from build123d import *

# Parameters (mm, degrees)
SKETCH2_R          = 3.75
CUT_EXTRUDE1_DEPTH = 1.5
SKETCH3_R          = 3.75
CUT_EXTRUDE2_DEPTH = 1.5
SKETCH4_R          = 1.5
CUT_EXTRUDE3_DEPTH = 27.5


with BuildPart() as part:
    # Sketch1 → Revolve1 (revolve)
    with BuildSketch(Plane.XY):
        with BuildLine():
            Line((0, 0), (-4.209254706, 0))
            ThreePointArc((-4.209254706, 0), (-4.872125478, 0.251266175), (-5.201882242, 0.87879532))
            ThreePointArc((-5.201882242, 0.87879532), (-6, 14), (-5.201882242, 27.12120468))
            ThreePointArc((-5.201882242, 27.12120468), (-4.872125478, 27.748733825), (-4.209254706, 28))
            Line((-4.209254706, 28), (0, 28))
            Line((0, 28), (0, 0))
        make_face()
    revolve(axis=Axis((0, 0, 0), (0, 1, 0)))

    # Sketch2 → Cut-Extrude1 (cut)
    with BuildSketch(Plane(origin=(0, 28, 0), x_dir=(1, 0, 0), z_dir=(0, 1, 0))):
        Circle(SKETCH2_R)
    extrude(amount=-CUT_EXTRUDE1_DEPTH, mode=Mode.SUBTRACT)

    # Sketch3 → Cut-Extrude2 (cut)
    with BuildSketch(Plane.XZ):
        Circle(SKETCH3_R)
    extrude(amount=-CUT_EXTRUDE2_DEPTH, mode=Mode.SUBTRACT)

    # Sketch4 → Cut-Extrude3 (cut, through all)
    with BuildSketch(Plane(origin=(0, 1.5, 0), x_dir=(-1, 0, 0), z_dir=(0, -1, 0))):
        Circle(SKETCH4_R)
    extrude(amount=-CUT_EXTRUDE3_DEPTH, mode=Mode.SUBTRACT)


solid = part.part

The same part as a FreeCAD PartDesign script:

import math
import FreeCAD as App
import Part
import Sketcher

V = App.Vector

doc = App.newDocument("Part")
params = doc.addObject("Spreadsheet::Sheet", "Params")
for row, (alias, value) in enumerate([
    ("sketch1_radius", "1 mm"),
    ("sketch1_height", "28 mm"),
    ("revolution_angle", "360 deg"),
    ("sketch2_diameter", "7.5 mm"),
    ("pocket1_length", "1.5 mm"),
    ("sketch3_diameter", "7.5 mm"),
    ("pocket2_length", "1.5 mm"),
    ("sketch4_diameter", "3 mm"),
], start=1):
    params.set(f"A{row}", alias)
    params.set(f"B{row}", "=" + value)
    params.setAlias(f"B{row}", alias)

body = doc.addObject("PartDesign::Body", "Body")

# Sketch on XY plane
sketch1 = body.newObject("Sketcher::SketchObject", "Sketch")
sketch1.AttachmentSupport = (doc.getObject("XY_Plane"), [""])
sketch1.MapMode = "FlatFace"
sketch1.addGeometry([
    Part.LineSegment(V(-4.2, 0, 0), V(0, 0, 0)),  # 0
    Part.LineSegment(V(0, 0, 0), V(0, 28, 0)),  # 1
    Part.LineSegment(V(0, 28, 0), V(-4.2, 28, 0)),  # 2
    Part.ArcOfCircle(Part.Circle(V(-4.2, 27, 0), V(0, 0, 1), 1), math.radians(90), math.radians(173)),  # 3
    Part.ArcOfCircle(Part.Circle(V(102.3, 14, 0), V(0, 0, 1), 108.3), math.radians(173.04), math.radians(186.96)),  # 4
    Part.ArcOfCircle(Part.Circle(V(-4.2, 1, 0), V(0, 0, 1), 1), math.radians(-173), math.radians(-90)),  # 5
], False)
sketch1.addConstraint([
    Sketcher.Constraint("Coincident", 0, 2, 1, 1),
    Sketcher.Constraint("Coincident", 1, 2, 2, 1),
    Sketcher.Constraint("Tangent", 2, 2, 3, 1),
    Sketcher.Constraint("Tangent", 3, 2, 4, 1),
    Sketcher.Constraint("Tangent", 4, 2, 5, 1),
    Sketcher.Constraint("Tangent", 5, 2, 0, 1),
    Sketcher.Constraint("Horizontal", 0),
    Sketcher.Constraint("Vertical", 1),
    Sketcher.Constraint("Horizontal", 2),
    Sketcher.Constraint("Coincident", 0, 2, -1, 1),
    Sketcher.Constraint("Equal", 3, 5),
    Sketcher.Constraint("Vertical", 3, 3, 5, 3),
    Sketcher.Constraint("Radius", 3, 1.0),
    Sketcher.Constraint("DistanceY", 1, 1, 1, 2, 28.0),
    Sketcher.Constraint("Radius", 4, 108.256584),
    Sketcher.Constraint("DistanceX", 0, 1, 0, 2, 4.209255),
])
sketch1.setExpression("Constraints[12]", "Params.sketch1_radius")
sketch1.setExpression("Constraints[13]", "Params.sketch1_height")
revolution = body.newObject("PartDesign::Revolution", "Revolution")
revolution.Profile = sketch1
revolution.ReferenceAxis = (sketch1, ["V_Axis"])
revolution.setExpression("Angle", "Params.revolution_angle")

# Sketch on XZ plane
sketch2 = body.newObject("Sketcher::SketchObject", "Sketch001")
sketch2.AttachmentSupport = (doc.getObject("XZ_Plane"), [""])
sketch2.MapMode = "FlatFace"
sketch2.AttachmentOffset = App.Placement(V(0, 0, -28), App.Rotation())
sketch2.addGeometry(Part.Circle(V(0, 0, 0), V(0, 0, 1), 3.8), False)
sketch2.addConstraint([
    Sketcher.Constraint("Coincident", 0, 3, -1, 1),
    Sketcher.Constraint("Diameter", 0, 7.5),
])
sketch2.setExpression("Constraints[1]", "Params.sketch2_diameter")
pocket1 = body.newObject("PartDesign::Pocket", "Pocket")
pocket1.Profile = sketch2
pocket1.setExpression("Length", "Params.pocket1_length")
pocket1.Reversed = True

# Sketch on XZ plane
sketch3 = body.newObject("Sketcher::SketchObject", "Sketch002")
sketch3.AttachmentSupport = (doc.getObject("XZ_Plane"), [""])
sketch3.MapMode = "FlatFace"
sketch3.addGeometry(Part.Circle(V(0, 0, 0), V(0, 0, 1), 3.8), False)
sketch3.addConstraint([
    Sketcher.Constraint("Coincident", 0, 3, -1, 1),
    Sketcher.Constraint("Diameter", 0, 7.5),
])
sketch3.setExpression("Constraints[1]", "Params.sketch3_diameter")
pocket2 = body.newObject("PartDesign::Pocket", "Pocket001")
pocket2.Profile = sketch3
pocket2.setExpression("Length", "Params.pocket2_length")

# Sketch on XZ plane
sketch4 = body.newObject("Sketcher::SketchObject", "Sketch003")
sketch4.AttachmentSupport = (doc.getObject("XZ_Plane"), [""])
sketch4.MapMode = "FlatFace"
sketch4.AttachmentOffset = App.Placement(V(0, 0, -1.5), App.Rotation())
sketch4.addGeometry(Part.Circle(V(0, 0, 0), V(0, 0, 1), 1.5), False)
sketch4.addConstraint([
    Sketcher.Constraint("Coincident", 0, 3, -1, 1),
    Sketcher.Constraint("Diameter", 0, 3.0),
])
sketch4.setExpression("Constraints[1]", "Params.sketch4_diameter")
pocket3 = body.newObject("PartDesign::Pocket", "Pocket002")
pocket3.Profile = sketch4
pocket3.Type = "ThroughAll"

doc.recompute()
